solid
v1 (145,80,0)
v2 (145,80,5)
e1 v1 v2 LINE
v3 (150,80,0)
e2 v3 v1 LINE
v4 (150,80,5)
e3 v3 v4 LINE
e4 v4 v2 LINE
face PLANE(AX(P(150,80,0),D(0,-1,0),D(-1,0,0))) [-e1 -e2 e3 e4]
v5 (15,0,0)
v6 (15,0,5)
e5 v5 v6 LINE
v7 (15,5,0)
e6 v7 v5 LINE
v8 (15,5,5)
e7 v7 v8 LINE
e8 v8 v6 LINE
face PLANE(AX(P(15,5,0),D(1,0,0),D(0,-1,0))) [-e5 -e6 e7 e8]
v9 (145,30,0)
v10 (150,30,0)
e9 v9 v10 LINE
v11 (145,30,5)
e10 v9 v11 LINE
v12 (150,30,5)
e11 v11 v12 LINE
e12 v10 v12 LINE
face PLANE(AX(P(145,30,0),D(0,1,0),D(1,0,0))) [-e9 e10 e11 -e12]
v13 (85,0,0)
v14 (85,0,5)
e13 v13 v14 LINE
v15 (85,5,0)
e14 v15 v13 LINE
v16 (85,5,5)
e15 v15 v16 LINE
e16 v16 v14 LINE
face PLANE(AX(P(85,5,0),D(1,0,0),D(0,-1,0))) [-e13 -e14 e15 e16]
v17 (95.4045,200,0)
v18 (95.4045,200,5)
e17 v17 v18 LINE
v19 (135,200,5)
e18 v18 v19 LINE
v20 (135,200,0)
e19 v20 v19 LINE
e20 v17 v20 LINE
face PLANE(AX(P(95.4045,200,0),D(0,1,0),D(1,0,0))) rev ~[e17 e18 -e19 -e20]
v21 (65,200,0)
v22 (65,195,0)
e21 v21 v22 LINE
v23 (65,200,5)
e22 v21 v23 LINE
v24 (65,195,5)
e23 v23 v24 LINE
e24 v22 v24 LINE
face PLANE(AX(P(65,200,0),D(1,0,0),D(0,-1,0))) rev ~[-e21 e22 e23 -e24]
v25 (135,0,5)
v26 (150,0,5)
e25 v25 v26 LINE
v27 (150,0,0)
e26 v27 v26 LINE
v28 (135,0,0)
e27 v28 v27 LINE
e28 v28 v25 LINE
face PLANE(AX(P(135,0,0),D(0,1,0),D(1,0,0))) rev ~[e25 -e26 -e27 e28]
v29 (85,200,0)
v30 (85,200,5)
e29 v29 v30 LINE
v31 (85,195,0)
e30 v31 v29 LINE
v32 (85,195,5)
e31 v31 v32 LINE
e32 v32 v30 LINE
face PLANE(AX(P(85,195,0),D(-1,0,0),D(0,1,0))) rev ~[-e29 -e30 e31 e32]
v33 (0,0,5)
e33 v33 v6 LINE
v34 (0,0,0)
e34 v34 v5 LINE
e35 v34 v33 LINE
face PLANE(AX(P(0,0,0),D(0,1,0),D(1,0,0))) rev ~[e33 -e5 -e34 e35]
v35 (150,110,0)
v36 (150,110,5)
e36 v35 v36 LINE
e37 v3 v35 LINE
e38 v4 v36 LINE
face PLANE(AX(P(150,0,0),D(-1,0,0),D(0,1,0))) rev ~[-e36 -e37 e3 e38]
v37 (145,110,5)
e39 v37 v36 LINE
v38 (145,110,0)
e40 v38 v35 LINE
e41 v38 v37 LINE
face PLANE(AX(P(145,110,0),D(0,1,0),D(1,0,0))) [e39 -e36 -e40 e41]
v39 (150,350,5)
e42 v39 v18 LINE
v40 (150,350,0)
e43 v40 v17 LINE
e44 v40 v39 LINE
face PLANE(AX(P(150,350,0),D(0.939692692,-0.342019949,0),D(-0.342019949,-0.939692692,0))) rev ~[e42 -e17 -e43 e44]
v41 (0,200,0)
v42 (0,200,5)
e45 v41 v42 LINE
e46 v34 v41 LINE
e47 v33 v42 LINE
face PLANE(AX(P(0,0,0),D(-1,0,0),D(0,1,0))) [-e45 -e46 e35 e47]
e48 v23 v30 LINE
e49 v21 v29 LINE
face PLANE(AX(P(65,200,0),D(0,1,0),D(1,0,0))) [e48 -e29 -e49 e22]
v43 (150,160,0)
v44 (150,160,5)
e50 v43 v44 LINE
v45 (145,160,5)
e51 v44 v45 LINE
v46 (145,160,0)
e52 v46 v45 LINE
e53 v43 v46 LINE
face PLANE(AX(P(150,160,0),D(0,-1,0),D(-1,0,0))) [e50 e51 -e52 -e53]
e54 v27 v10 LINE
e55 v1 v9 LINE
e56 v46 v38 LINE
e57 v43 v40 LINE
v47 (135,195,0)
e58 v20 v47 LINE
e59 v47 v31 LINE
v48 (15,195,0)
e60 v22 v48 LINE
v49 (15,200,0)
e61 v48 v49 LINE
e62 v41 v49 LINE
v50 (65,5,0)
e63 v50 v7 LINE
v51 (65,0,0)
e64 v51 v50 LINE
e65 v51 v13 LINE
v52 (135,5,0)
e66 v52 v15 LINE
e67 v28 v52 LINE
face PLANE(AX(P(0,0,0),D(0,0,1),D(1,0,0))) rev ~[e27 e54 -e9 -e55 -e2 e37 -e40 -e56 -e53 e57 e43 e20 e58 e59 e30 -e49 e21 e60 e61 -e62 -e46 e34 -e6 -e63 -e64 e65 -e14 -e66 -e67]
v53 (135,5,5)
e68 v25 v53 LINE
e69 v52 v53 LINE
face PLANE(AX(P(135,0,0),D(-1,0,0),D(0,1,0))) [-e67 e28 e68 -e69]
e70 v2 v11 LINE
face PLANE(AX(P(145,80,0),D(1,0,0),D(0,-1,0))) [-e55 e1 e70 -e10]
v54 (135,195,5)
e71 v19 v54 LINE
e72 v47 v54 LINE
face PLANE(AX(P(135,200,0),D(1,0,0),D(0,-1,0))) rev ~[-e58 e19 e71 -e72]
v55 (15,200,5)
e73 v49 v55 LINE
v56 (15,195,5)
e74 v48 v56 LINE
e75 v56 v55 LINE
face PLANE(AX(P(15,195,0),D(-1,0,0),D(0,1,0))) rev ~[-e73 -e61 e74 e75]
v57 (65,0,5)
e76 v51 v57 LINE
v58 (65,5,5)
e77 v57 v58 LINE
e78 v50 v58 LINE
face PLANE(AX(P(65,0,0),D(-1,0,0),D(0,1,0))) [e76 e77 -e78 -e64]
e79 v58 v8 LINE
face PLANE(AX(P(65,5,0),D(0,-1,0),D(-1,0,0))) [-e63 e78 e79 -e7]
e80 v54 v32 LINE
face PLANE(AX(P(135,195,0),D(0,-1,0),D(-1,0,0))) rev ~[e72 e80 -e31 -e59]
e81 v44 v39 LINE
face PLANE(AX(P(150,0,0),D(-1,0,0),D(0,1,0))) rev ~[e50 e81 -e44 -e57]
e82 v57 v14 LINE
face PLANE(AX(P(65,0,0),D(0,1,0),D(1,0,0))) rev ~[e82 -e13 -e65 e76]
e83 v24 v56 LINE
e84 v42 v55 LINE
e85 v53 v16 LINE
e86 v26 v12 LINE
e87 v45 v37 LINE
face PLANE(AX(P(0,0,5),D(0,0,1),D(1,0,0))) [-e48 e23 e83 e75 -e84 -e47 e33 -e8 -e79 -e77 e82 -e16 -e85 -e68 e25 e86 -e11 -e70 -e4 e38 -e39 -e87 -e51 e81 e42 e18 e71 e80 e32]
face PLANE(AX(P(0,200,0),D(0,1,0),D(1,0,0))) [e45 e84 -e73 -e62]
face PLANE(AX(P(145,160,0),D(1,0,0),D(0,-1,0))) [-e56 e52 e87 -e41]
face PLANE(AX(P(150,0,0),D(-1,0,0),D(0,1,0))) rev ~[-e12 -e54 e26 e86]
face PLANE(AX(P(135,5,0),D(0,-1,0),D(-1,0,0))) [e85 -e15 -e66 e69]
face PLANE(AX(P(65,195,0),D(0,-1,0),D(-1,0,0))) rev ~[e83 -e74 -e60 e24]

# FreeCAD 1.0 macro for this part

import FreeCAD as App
import Part
import Sketcher

V = App.Vector
Q = App.Units.Quantity


def add_polygon(sketch, points):
    """Adds a closed chain of lines whose ends are joined by coincident constraints."""
    first, n = sketch.GeometryCount, len(points)
    for a, b in zip(points, points[1:] + points[:1]):
        sketch.addGeometry(Part.LineSegment(App.Vector(*a, 0), App.Vector(*b, 0)), False)
    for i in range(n):
        sketch.addConstraint(Sketcher.Constraint("Coincident", first + i, 2, first + (i + 1) % n, 1))

doc = App.newDocument("Part")
body = doc.addObject("PartDesign::Body", "Body")

sketch1 = body.newObject("Sketcher::SketchObject", "Sketch")
sketch1.AttachmentSupport = (doc.getObject("XY_Plane"), [""])
sketch1.MapMode = "FlatFace"
add_polygon(sketch1, [(0, 200), (0, 0), (15, 0), (15, 5), (65, 5), (65, 0), (85, 0), (85, 5), (135, 5), (135, 0), (150, 0), (150, 350), (95, 200), (135, 200), (135, 195), (85, 195), (85, 200), (65, 200), (65, 195), (15, 195), (15, 200)])
sketch1.addConstraint(Sketcher.Constraint("Vertical", 0))
sketch1.addConstraint(Sketcher.Constraint("Horizontal", 1))
sketch1.addConstraint(Sketcher.Constraint("Vertical", 2))
sketch1.addConstraint(Sketcher.Constraint("Horizontal", 3))
sketch1.addConstraint(Sketcher.Constraint("Vertical", 4))
sketch1.addConstraint(Sketcher.Constraint("Horizontal", 5))
sketch1.addConstraint(Sketcher.Constraint("Vertical", 6))
sketch1.addConstraint(Sketcher.Constraint("Horizontal", 7))
sketch1.addConstraint(Sketcher.Constraint("Vertical", 8))
sketch1.addConstraint(Sketcher.Constraint("Horizontal", 9))
sketch1.addConstraint(Sketcher.Constraint("Vertical", 10))
sketch1.addConstraint(Sketcher.Constraint("Horizontal", 12))
sketch1.addConstraint(Sketcher.Constraint("Vertical", 13))
sketch1.addConstraint(Sketcher.Constraint("Horizontal", 14))
sketch1.addConstraint(Sketcher.Constraint("Vertical", 15))
sketch1.addConstraint(Sketcher.Constraint("Horizontal", 16))
sketch1.addConstraint(Sketcher.Constraint("Vertical", 17))
sketch1.addConstraint(Sketcher.Constraint("Horizontal", 18))
sketch1.addConstraint(Sketcher.Constraint("Vertical", 19))
sketch1.addConstraint(Sketcher.Constraint("Horizontal", 20))
sketch1.addConstraint(Sketcher.Constraint("Coincident", 0, 2, -1, 1))
sketch1.addConstraint(Sketcher.Constraint("PointOnObject", 4, 2, -1))
sketch1.addConstraint(Sketcher.Constraint("PointOnObject", 8, 2, -1))
sketch1.addConstraint(Sketcher.Constraint("Horizontal", 3, 2, 6, 2))
sketch1.addConstraint(Sketcher.Constraint("Horizontal", 12, 2, 15, 2))
sketch1.addConstraint(Sketcher.Constraint("Horizontal", 14, 2, 17, 2))
sketch1.addConstraint(Sketcher.Constraint("Horizontal", 16, 2, 19, 2))
sketch1.addConstraint(Sketcher.Constraint("Vertical", 8, 2, 12, 2))
sketch1.addConstraint(Sketcher.Constraint("Vertical", 6, 2, 14, 2))
sketch1.addConstraint(Sketcher.Constraint("Vertical", 4, 2, 16, 2))
sketch1.addConstraint(Sketcher.Constraint("Vertical", 2, 2, 18, 2))
sketch1.addConstraint(Sketcher.Constraint("Equal", 3, 7))
sketch1.addConstraint(Sketcher.Constraint("Equal", 1, 9))
sketch1.addConstraint(Sketcher.Constraint("Equal", 8, 13))
sketch1.addConstraint(Sketcher.Constraint("DistanceX", 1, 1, 1, 2, Q("15 mm")))
sketch1.addConstraint(Sketcher.Constraint("DistanceX", 3, 1, 3, 2, Q("50 mm")))
sketch1.addConstraint(Sketcher.Constraint("DistanceX", 5, 1, 5, 2, Q("20 mm")))
sketch1.addConstraint(Sketcher.Constraint("DistanceY", 2, 1, 2, 2, Q("5 mm")))
sketch1.addConstraint(Sketcher.Constraint("DistanceY", 0, 2, 0, 1, Q("200 mm")))
sketch1.addConstraint(Sketcher.Constraint("DistanceY", 10, 1, 10, 2, Q("350 mm")))
sketch1.addConstraint(Sketcher.Constraint("Angle", 11, Q("-110 deg")))
pad1 = body.newObject("PartDesign::Pad", "Pad")
pad1.Profile = sketch1
pad1.Length = 5

sketch2 = body.newObject("Sketcher::SketchObject", "Sketch001")
sketch2.AttachmentSupport = (doc.getObject("XY_Plane"), [""])
sketch2.MapMode = "FlatFace"
add_polygon(sketch2, [(150, 160), (150, 110), (145, 110), (145, 160)])
add_polygon(sketch2, [(150, 80), (150, 30), (145, 30), (145, 80)])
sketch2.addConstraint(Sketcher.Constraint("Vertical", 0))
sketch2.addConstraint(Sketcher.Constraint("Horizontal", 1))
sketch2.addConstraint(Sketcher.Constraint("Vertical", 2))
sketch2.addConstraint(Sketcher.Constraint("Horizontal", 3))
sketch2.addConstraint(Sketcher.Constraint("Vertical", 4))
sketch2.addConstraint(Sketcher.Constraint("Horizontal", 5))
sketch2.addConstraint(Sketcher.Constraint("Vertical", 6))
sketch2.addConstraint(Sketcher.Constraint("Horizontal", 7))
sketch2.addConstraint(Sketcher.Constraint("Vertical", 3, 2, 4, 2))
sketch2.addConstraint(Sketcher.Constraint("Vertical", 2, 2, 5, 2))
sketch2.addConstraint(Sketcher.Constraint("Equal", 2, 4))
sketch2.addConstraint(Sketcher.Constraint("DistanceX", 1, 2, 1, 1, Q("5 mm")))
sketch2.addConstraint(Sketcher.Constraint("DistanceY", 0, 2, 0, 1, Q("50 mm")))
sketch2.addConstraint(Sketcher.Constraint("DistanceY", -1, 1, 4, 2, Q("30 mm")))
sketch2.addConstraint(Sketcher.Constraint("DistanceY", 6, 2, 1, 2, Q("30 mm")))
sketch2.addConstraint(Sketcher.Constraint("DistanceX", -1, 1, 0, 2, Q("150 mm")))
pocket1 = body.newObject("PartDesign::Pocket", "Pocket")
pocket1.Profile = sketch2
pocket1.Length = 5
pocket1.Reversed = True

doc.recompute()
